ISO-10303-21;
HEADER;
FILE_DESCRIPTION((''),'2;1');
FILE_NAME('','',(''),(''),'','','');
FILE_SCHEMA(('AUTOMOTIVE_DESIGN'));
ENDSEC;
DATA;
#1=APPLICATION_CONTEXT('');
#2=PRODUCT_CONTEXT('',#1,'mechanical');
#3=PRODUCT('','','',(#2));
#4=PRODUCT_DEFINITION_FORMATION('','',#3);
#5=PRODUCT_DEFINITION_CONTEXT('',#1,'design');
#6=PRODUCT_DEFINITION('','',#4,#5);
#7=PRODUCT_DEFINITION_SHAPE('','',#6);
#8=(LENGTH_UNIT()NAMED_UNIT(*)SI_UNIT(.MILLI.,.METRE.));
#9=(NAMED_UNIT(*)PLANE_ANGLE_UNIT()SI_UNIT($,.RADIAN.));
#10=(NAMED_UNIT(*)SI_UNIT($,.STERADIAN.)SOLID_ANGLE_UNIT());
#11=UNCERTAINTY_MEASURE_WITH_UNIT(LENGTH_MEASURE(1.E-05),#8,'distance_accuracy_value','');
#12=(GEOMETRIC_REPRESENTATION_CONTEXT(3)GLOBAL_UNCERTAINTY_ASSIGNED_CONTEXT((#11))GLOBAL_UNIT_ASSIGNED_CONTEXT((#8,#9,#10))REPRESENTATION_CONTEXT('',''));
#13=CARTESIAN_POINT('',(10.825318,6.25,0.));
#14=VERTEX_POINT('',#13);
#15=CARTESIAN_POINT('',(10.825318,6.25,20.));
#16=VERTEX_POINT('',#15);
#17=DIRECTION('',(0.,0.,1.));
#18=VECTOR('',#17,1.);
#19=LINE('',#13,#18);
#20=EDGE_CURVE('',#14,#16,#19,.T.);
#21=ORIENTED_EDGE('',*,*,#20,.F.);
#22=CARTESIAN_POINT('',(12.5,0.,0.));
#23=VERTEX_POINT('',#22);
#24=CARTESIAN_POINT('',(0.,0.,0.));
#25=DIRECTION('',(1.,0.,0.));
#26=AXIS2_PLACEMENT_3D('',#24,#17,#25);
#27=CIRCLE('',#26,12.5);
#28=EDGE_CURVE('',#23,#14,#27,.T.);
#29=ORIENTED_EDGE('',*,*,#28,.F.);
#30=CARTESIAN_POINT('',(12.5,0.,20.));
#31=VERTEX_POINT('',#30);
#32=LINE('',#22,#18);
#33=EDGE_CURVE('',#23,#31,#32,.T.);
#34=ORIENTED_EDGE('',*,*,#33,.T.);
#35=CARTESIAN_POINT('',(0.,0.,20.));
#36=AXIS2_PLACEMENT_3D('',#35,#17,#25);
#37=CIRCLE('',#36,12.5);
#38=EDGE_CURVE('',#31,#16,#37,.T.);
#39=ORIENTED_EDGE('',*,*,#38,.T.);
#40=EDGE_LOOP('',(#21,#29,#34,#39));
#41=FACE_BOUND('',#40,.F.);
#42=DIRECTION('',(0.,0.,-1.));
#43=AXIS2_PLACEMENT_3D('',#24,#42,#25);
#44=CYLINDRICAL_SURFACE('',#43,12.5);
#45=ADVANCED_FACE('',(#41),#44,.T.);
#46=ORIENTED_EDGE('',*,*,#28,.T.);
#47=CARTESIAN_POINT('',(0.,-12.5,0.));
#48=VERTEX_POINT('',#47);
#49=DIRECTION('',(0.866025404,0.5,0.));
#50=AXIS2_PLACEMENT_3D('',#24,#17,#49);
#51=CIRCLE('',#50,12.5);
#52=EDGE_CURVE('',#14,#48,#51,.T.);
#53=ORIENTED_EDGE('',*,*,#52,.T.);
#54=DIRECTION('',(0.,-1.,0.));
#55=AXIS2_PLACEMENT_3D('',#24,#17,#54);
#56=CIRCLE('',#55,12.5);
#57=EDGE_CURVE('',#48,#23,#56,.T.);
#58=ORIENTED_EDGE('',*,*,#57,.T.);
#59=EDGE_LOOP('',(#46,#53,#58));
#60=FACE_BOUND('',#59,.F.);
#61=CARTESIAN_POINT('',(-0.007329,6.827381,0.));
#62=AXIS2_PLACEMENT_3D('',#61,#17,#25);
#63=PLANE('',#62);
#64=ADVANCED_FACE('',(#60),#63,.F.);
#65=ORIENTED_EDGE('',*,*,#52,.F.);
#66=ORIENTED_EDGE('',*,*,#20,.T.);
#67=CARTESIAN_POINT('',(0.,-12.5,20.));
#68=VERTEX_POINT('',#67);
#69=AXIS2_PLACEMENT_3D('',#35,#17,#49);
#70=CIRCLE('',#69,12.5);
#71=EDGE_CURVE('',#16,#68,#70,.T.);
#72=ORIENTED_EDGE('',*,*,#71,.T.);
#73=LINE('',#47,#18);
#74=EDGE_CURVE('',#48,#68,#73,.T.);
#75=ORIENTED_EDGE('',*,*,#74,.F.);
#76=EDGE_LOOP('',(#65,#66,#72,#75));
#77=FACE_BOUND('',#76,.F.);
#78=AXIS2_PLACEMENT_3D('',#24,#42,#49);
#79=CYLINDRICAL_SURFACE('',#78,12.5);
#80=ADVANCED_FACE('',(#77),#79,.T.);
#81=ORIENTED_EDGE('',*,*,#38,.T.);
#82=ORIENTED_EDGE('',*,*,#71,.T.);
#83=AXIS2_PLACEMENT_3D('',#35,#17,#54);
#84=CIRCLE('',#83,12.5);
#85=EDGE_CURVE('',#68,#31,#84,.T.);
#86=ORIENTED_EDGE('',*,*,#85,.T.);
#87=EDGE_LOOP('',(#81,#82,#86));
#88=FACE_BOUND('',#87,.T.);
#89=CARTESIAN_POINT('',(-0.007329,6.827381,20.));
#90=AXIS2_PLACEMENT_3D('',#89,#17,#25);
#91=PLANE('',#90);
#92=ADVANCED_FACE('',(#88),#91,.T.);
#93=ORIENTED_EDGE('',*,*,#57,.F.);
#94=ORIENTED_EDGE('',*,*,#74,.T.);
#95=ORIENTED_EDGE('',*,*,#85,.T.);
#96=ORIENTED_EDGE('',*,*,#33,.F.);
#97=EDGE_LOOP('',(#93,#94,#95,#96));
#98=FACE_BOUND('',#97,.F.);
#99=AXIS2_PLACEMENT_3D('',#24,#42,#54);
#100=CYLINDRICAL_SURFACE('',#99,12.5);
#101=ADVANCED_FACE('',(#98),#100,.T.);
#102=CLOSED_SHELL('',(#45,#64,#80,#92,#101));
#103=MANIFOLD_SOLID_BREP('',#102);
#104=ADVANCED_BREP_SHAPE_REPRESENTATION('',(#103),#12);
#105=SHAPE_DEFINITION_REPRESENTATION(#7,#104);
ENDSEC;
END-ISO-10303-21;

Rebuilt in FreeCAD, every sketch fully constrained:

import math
import FreeCAD as App
import Part
import Sketcher

V = App.Vector

doc = App.newDocument("Part")
params = doc.addObject("Spreadsheet::Sheet", "Params")
for row, (alias, value) in enumerate([
    ("sketch1_radius", "12.5 mm"),
    ("pad1_length", "20 mm"),
], start=1):
    params.set(f"A{row}", alias)
    params.set(f"B{row}", "=" + value)
    params.setAlias(f"B{row}", alias)

body = doc.addObject("PartDesign::Body", "Body")

sketch1 = doc.addObject("Sketcher::SketchObject", "Sketch")
body.addObject(sketch1)
sketch1.AttachmentSupport = (doc.XY_Plane, [""])
sketch1.MapMode = "FlatFace"
sketch1.addGeometry([
    Part.ArcOfCircle(Part.Circle(V(0, 0, 0), V(0, 0, 1), 12.5), math.radians(30), math.radians(270)),
    Part.ArcOfCircle(Part.Circle(V(0, 0, 0), V(0, 0, 1), 12.5), math.radians(-90), math.radians(0)),
    Part.ArcOfCircle(Part.Circle(V(0, 0, 0), V(0, 0, 1), 12.5), math.radians(0), math.radians(30)),
], False)
sketch1.addConstraint([
    Sketcher.Constraint("Tangent", 0, 2, 1, 1),
    Sketcher.Constraint("Tangent", 1, 2, 2, 1),
    Sketcher.Constraint("Tangent", 2, 2, 0, 1),
    Sketcher.Constraint("Coincident", 0, 3, -1, 1),
    Sketcher.Constraint("PointOnObject", 0, 2, -2),
    Sketcher.Constraint("PointOnObject", 1, 2, -1),
    Sketcher.Constraint("Radius", 0, 12.5),
    Sketcher.Constraint("DistanceY", -1, 1, 2, 2, 6.25),
])
sketch1.setExpression("Constraints[6]", "Params.sketch1_radius")
pad1 = doc.addObject("PartDesign::Pad", "Pad")
body.addObject(pad1)
pad1.Profile = sketch1
pad1.setExpression("Length", "Params.pad1_length")

doc.recompute()
